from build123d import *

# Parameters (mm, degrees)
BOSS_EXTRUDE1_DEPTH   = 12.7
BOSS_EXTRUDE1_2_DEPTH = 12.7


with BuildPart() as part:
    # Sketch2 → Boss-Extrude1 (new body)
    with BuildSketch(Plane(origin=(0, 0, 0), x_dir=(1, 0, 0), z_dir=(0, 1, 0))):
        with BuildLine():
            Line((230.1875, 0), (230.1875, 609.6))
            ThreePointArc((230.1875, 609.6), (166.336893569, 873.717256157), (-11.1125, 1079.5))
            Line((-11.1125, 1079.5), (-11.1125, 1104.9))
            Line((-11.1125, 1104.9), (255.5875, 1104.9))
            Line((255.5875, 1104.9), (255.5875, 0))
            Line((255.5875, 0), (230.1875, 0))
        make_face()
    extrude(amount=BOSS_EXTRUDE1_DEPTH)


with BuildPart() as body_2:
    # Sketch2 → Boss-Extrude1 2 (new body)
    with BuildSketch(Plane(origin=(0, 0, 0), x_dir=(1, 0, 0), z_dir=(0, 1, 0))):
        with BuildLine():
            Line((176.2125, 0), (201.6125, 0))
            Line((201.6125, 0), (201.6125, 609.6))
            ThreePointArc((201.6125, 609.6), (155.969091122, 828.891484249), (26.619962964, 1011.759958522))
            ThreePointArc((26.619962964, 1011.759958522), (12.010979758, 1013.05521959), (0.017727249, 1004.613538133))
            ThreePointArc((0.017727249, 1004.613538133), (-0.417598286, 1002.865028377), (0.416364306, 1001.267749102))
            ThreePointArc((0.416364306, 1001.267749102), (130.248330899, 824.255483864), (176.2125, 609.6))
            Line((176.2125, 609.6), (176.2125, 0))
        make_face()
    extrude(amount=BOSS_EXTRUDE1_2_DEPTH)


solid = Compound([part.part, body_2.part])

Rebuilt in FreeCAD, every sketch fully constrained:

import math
import FreeCAD as App
import Part
import Sketcher

V = App.Vector
Q = App.Units.Quantity

doc = App.newDocument("Part")
body = doc.addObject("PartDesign::Body", "Body")

sketch1 = body.newObject("Sketcher::SketchObject", "Sketch")
sketch1.AttachmentSupport = (doc.getObject("XZ_Plane"), [""])
sketch1.MapMode = "FlatFace"
sketch1.addGeometry(Part.LineSegment(V(230, -610, 0), V(230, 0, 0)), False)
sketch1.addGeometry(Part.LineSegment(V(230, 0, 0), V(256, 0, 0)), False)
sketch1.addGeometry(Part.LineSegment(V(256, 0, 0), V(256, -1105, 0)), False)
sketch1.addGeometry(Part.LineSegment(V(256, -1105, 0), V(-11, -1105, 0)), False)
sketch1.addGeometry(Part.LineSegment(V(-11, -1105, 0), V(-11, -1080, 0)), False)
sketch1.addGeometry(Part.ArcOfCircle(Part.Circle(V(-348, -610, 0), V(0, 0, 1), 578), math.radians(-54), math.radians(0)), False)
sketch1.addConstraint(Sketcher.Constraint("Coincident", 0, 2, 1, 1))
sketch1.addConstraint(Sketcher.Constraint("Coincident", 1, 2, 2, 1))
sketch1.addConstraint(Sketcher.Constraint("Coincident", 2, 2, 3, 1))
sketch1.addConstraint(Sketcher.Constraint("Coincident", 3, 2, 4, 1))
sketch1.addConstraint(Sketcher.Constraint("Coincident", 4, 2, 5, 1))
sketch1.addConstraint(Sketcher.Constraint("Tangent", 5, 2, 0, 1))
sketch1.addConstraint(Sketcher.Constraint("Vertical", 0))
sketch1.addConstraint(Sketcher.Constraint("Horizontal", 1))
sketch1.addConstraint(Sketcher.Constraint("Vertical", 2))
sketch1.addConstraint(Sketcher.Constraint("Horizontal", 3))
sketch1.addConstraint(Sketcher.Constraint("Vertical", 4))
sketch1.addConstraint(Sketcher.Constraint("PointOnObject", 0, 2, -1))
sketch1.addConstraint(Sketcher.Constraint("Equal", 1, 4))
sketch1.addConstraint(Sketcher.Constraint("DistanceX", 1, 1, 1, 2, Q("1 in")))
sketch1.addConstraint(Sketcher.Constraint("DistanceY", 0, 1, 0, 2, Q("24 in")))
sketch1.addConstraint(Sketcher.Constraint("DistanceX", 3, 2, 3, 1, Q("10.5 in")))
sketch1.addConstraint(Sketcher.Constraint("DistanceY", 2, 2, 2, 1, Q("43.5 in")))
sketch1.addConstraint(Sketcher.Constraint("DistanceX", -1, 1, 0, 2, Q("9.0625 in")))
pad1 = body.newObject("PartDesign::Pad", "Pad")
pad1.Profile = sketch1
pad1.Length = Q("0.5 in")
pad1.Reversed = True
body2 = doc.addObject("PartDesign::Body", "Body001")

sketch2 = body2.newObject("Sketcher::SketchObject", "Sketch001")
sketch2.AttachmentSupport = (doc.getObject("XZ_Plane001"), [""])
sketch2.MapMode = "FlatFace"
sketch2.addGeometry(Part.LineSegment(V(176.2, 0, 0), V(201.6, 0, 0)), False)
sketch2.addGeometry(Part.LineSegment(V(201.6, 0, 0), V(201.6, -609.6, 0)), False)
sketch2.addGeometry(Part.ArcOfCircle(Part.Circle(V(-348, -609.6, 0), V(0, 0, 1), 549.6), math.radians(-47), math.radians(0)), False)
sketch2.addGeometry(Part.ArcOfCircle(Part.Circle(V(17.5, -992.5, 0), V(0, 0, 1), 21.3), math.radians(-145), math.radians(-65)), False)
sketch2.addGeometry(Part.ArcOfCircle(Part.Circle(V(2.1, -1003.2, 0), V(0, 0, 1), 2.5), math.radians(132), math.radians(215)), False)
sketch2.addGeometry(Part.ArcOfCircle(Part.Circle(V(-348, -609.6, 0), V(0, 0, 1), 524.2), math.radians(-48), math.radians(0)), False)
sketch2.addGeometry(Part.LineSegment(V(176.2, -609.6, 0), V(176.2, 0, 0)), False)
sketch2.addConstraint(Sketcher.Constraint("Coincident", 0, 2, 1, 1))
sketch2.addConstraint(Sketcher.Constraint("Tangent", 1, 2, 2, 2))
sketch2.addConstraint(Sketcher.Constraint("Coincident", 2, 1, 3, 2))
sketch2.addConstraint(Sketcher.Constraint("Tangent", 3, 1, 4, 2))
sketch2.addConstraint(Sketcher.Constraint("Tangent", 4, 1, 5, 1))
sketch2.addConstraint(Sketcher.Constraint("Tangent", 5, 2, 6, 1))
sketch2.addConstraint(Sketcher.Constraint("Coincident", 6, 2, 0, 1))
sketch2.addConstraint(Sketcher.Constraint("Horizontal", 0))
sketch2.addConstraint(Sketcher.Constraint("Vertical", 1))
sketch2.addConstraint(Sketcher.Constraint("Vertical", 6))
sketch2.addConstraint(Sketcher.Constraint("Coincident", 5, 3, 2, 3))
sketch2.addConstraint(Sketcher.Constraint("PointOnObject", 0, 2, -1))
sketch2.addConstraint(Sketcher.Constraint("Radius", 4, Q("0.1 in")))
sketch2.addConstraint(Sketcher.Constraint("DistanceX", 0, 1, 0, 2, Q("1 in")))
sketch2.addConstraint(Sketcher.Constraint("DistanceY", 1, 2, 1, 1, Q("24 in")))
sketch2.addConstraint(Sketcher.Constraint("DistanceX", -1, 1, 0, 2, Q("7.9375 in")))
sketch2.addConstraint(Sketcher.Constraint("Radius", 2, 549.609211))
sketch2.addConstraint(Sketcher.Constraint("Radius", 3, 21.334708))
sketch2.addConstraint(Sketcher.Constraint("DistanceX", 4, 3, 2, 1, 24.5154))
sketch2.addConstraint(Sketcher.Constraint("DistanceY", 3, 1, -1, 1, 1004.613538))
pad2 = body2.newObject("PartDesign::Pad", "Pad001")
pad2.Profile = sketch2
pad2.Length = Q("0.5 in")
pad2.Reversed = True

doc.recompute()
